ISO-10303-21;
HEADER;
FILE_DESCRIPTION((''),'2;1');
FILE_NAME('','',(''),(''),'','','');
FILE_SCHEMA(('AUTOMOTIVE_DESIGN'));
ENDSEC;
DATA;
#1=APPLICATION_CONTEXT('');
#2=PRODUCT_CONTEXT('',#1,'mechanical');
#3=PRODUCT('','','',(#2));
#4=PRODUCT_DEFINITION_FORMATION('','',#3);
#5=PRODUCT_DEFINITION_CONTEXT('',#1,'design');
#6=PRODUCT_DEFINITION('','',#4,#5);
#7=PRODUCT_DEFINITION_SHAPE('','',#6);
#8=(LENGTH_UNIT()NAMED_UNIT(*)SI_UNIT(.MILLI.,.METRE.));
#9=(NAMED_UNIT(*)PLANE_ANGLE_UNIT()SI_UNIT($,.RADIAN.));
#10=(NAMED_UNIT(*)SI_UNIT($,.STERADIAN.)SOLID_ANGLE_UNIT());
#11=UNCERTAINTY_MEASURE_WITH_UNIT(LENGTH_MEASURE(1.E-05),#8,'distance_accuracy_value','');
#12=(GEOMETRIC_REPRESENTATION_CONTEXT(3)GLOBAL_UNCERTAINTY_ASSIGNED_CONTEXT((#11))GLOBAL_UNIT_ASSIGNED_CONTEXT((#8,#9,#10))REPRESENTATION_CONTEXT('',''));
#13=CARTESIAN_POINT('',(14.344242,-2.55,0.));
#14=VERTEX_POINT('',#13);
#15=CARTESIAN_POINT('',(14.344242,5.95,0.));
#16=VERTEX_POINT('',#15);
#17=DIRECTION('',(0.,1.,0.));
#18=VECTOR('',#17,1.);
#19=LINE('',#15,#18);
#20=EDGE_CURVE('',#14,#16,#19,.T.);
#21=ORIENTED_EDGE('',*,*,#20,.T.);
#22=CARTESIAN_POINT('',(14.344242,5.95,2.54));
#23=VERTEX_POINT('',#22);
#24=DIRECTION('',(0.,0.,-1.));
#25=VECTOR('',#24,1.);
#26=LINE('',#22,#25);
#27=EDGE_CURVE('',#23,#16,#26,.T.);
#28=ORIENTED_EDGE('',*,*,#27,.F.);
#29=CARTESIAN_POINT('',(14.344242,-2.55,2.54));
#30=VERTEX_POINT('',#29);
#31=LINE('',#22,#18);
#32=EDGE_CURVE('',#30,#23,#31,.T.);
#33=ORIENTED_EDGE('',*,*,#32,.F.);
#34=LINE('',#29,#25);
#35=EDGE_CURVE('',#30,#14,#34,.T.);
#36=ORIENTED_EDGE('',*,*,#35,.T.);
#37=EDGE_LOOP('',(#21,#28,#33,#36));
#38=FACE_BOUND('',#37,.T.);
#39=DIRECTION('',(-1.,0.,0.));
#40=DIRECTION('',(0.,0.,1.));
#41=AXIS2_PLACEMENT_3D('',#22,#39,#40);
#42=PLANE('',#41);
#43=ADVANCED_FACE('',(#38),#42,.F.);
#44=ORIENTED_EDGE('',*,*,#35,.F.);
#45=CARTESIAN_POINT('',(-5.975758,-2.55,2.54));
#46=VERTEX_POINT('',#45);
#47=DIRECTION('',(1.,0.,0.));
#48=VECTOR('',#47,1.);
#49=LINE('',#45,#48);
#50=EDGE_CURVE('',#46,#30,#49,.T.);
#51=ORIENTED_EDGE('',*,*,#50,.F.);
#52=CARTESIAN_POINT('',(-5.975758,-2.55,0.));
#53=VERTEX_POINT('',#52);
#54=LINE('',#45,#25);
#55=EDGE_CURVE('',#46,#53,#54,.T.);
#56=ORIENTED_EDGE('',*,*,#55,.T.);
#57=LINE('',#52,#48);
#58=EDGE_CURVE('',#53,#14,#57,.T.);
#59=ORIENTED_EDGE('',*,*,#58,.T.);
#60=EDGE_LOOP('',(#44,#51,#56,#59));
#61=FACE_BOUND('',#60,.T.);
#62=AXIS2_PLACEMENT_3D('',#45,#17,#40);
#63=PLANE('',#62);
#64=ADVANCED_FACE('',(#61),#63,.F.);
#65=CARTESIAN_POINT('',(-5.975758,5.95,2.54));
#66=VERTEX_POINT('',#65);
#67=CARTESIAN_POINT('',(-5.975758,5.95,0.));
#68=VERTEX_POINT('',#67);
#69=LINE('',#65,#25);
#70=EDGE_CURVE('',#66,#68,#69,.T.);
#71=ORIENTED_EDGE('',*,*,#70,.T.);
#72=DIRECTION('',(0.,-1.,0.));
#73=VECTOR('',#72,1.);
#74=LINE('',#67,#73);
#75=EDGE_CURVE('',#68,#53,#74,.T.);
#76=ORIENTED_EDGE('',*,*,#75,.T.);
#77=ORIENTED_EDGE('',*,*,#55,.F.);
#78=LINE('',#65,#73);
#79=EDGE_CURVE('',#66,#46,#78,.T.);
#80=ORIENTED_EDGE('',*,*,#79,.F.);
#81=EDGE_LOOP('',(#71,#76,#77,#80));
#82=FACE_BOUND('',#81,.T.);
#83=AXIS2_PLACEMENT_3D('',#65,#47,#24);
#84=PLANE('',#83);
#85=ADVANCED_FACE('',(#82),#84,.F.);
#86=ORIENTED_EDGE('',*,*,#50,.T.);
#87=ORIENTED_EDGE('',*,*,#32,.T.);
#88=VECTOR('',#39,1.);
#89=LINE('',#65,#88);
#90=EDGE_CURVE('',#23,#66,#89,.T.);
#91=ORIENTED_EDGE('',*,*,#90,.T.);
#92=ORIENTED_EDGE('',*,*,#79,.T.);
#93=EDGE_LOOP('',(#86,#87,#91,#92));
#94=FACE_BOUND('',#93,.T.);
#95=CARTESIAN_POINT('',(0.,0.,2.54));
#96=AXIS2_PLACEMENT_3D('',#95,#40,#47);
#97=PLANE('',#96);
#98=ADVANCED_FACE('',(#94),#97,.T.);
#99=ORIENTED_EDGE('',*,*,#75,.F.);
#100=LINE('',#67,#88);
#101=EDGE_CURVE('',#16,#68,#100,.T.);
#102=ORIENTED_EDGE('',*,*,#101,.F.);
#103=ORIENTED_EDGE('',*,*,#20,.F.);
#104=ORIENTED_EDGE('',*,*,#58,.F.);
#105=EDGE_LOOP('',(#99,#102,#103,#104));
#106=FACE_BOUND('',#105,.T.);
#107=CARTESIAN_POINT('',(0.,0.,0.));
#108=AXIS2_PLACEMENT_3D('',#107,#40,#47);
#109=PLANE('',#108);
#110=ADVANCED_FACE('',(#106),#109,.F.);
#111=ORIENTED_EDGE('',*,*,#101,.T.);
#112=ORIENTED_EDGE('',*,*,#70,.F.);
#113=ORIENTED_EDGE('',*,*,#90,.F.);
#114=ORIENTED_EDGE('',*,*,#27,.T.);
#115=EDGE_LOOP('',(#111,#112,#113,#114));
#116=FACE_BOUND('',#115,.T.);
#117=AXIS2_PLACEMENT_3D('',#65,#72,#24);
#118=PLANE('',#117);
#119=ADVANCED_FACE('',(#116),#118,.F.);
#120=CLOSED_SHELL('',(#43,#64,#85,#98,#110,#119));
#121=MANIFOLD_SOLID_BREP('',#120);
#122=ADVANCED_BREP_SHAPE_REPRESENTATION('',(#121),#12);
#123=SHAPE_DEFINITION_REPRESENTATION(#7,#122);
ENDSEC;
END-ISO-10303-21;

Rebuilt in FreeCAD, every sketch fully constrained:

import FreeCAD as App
import Part
import Sketcher
Q = App.Units.Quantity


def add_polygon(sketch, points):
    """Adds a closed chain of lines whose ends are joined by coincident constraints."""
    first, n = sketch.GeometryCount, len(points)
    for a, b in zip(points, points[1:] + points[:1]):
        sketch.addGeometry(Part.LineSegment(App.Vector(*a, 0), App.Vector(*b, 0)), False)
    for i in range(n):
        sketch.addConstraint(Sketcher.Constraint("Coincident", first + i, 2, first + (i + 1) % n, 1))

doc = App.newDocument("Part")
body = doc.addObject("PartDesign::Body", "Body")

# Sketch on XY plane
sketch1 = doc.addObject("Sketcher::SketchObject", "Sketch")
body.addObject(sketch1)
sketch1.AttachmentSupport = (doc.XY_Plane, [""])
sketch1.MapMode = "FlatFace"
add_polygon(sketch1, [(-6, 6), (-6, -3), (14, -3), (14, 6)])  # lines 0-3
sketch1.addConstraint([
    Sketcher.Constraint("Vertical", 0),
    Sketcher.Constraint("Horizontal", 1),
    Sketcher.Constraint("Vertical", 2),
    Sketcher.Constraint("Horizontal", 3),
    Sketcher.Constraint("DistanceX", 1, 1, 1, 2, Q("0.8 in")),
    Sketcher.Constraint("DistanceY", 0, 2, 0, 1, Q("8.5 mm")),
    Sketcher.Constraint("DistanceY", 0, 2, -1, 1, Q("2.55 mm")),
    Sketcher.Constraint("DistanceX", 0, 2, -1, 1, Q("5.975758 mm")),
])
pad1 = doc.addObject("PartDesign::Pad", "Pad")
body.addObject(pad1)
pad1.Profile = sketch1
pad1.Length = Q("0.1 in")

doc.recompute()
